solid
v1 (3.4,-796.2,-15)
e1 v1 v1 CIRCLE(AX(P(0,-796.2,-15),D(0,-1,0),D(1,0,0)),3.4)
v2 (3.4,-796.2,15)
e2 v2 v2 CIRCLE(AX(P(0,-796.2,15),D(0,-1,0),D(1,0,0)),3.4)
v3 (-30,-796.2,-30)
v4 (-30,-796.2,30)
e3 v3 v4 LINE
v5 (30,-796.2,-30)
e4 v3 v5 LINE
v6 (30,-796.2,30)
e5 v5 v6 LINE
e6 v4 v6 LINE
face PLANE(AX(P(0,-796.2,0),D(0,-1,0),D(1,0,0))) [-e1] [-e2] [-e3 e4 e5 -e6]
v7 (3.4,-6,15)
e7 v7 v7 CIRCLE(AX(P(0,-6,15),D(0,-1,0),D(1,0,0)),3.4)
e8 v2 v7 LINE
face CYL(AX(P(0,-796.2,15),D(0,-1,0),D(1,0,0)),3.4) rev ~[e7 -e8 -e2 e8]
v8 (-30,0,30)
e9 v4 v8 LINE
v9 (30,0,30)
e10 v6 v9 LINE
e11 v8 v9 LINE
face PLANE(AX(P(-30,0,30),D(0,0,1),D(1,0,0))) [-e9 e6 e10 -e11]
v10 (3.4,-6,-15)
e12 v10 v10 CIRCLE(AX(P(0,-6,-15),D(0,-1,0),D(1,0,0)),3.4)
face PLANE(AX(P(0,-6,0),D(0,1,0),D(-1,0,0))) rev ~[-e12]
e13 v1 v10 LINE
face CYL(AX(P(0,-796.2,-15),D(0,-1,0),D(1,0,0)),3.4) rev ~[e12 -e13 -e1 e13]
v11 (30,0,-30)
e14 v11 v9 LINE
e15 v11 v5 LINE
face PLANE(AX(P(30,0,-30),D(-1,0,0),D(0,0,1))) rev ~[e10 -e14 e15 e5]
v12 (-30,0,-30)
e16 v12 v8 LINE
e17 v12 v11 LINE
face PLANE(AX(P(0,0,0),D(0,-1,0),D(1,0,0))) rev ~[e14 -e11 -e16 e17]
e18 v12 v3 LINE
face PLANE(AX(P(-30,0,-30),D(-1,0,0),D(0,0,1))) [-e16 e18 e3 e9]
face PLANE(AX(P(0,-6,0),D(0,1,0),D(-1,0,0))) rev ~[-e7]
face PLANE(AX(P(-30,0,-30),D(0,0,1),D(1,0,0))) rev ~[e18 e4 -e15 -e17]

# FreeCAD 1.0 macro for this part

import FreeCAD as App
import Part
import Sketcher
from FreeCAD import Vector
Q = App.Units.Quantity

doc = App.newDocument("Part")
body = doc.addObject("PartDesign::Body", "Body")

# Sketch on XZ plane
sketch1 = body.newObject("Sketcher::SketchObject", "Sketch")
sketch1.AttachmentSupport = (doc.getObject("XZ_Plane"), [""])
sketch1.MapMode = "FlatFace"
sketch1.addGeometry([
    Part.LineSegment(Vector(-30, 30, 0), Vector(-30, -30, 0)),
    Part.LineSegment(Vector(-30, -30, 0), Vector(30, -30, 0)),
    Part.LineSegment(Vector(30, -30, 0), Vector(30, 30, 0)),
    Part.LineSegment(Vector(30, 30, 0), Vector(-30, 30, 0)),
], False)
sketch1.addConstraint([
    Sketcher.Constraint("Coincident", 0, 2, 1, 1),
    Sketcher.Constraint("Coincident", 1, 2, 2, 1),
    Sketcher.Constraint("Coincident", 2, 2, 3, 1),
    Sketcher.Constraint("Coincident", 3, 2, 0, 1),
    Sketcher.Constraint("Vertical", 0),
    Sketcher.Constraint("Horizontal", 1),
    Sketcher.Constraint("Vertical", 2),
    Sketcher.Constraint("Horizontal", 3),
    Sketcher.Constraint("Symmetric", 0, 2, 2, 2, -1, 1),
    Sketcher.Constraint("Equal", 3, 0),
    Sketcher.Constraint("DistanceX", 1, 1, 1, 2, Q("60 mm")),
])
pad1 = body.newObject("PartDesign::Pad", "Pad")
pad1.Profile = sketch1
pad1.Length = 796.2

# Sketch on XZ plane
sketch2 = body.newObject("Sketcher::SketchObject", "Sketch001")
sketch2.AttachmentSupport = (doc.getObject("XZ_Plane"), [""])
sketch2.MapMode = "FlatFace"
sketch2.AttachmentOffset = App.Placement(Vector(0, 0, 796.2), App.Rotation())
sketch2.addGeometry([
    Part.LineSegment(Vector(-30, 30, 0), Vector(-30, -30, 0)),
    Part.LineSegment(Vector(-30, -30, 0), Vector(30, -30, 0)),
    Part.LineSegment(Vector(30, -30, 0), Vector(30, 30, 0)),
    Part.LineSegment(Vector(30, 30, 0), Vector(-30, 30, 0)),
], False)
sketch2.addConstraint([
    Sketcher.Constraint("Coincident", 0, 2, 1, 1),
    Sketcher.Constraint("Coincident", 1, 2, 2, 1),
    Sketcher.Constraint("Coincident", 2, 2, 3, 1),
    Sketcher.Constraint("Coincident", 3, 2, 0, 1),
    Sketcher.Constraint("Vertical", 0),
    Sketcher.Constraint("Horizontal", 1),
    Sketcher.Constraint("Vertical", 2),
    Sketcher.Constraint("Horizontal", 3),
    Sketcher.Constraint("Symmetric", 0, 2, 2, 2, -1, 1),
    Sketcher.Constraint("Equal", 3, 0),
    Sketcher.Constraint("DistanceX", 1, 1, 1, 2, Q("60 mm")),
])
pad2 = body.newObject("PartDesign::Pad", "Pad001")
pad2.Profile = sketch2
pad2.Length = 6
pad2.Reversed = True

# Sketch on XZ plane
sketch3 = body.newObject("Sketcher::SketchObject", "Sketch002")
sketch3.AttachmentSupport = (doc.getObject("XZ_Plane"), [""])
sketch3.MapMode = "FlatFace"
sketch3.AttachmentOffset = App.Placement(Vector(0, 0, 796.2), App.Rotation())
sketch3.addGeometry([
    Part.Circle(Vector(0, 15, 0), Vector(0, 0, 1), 3.4),
    Part.Circle(Vector(0, -15, 0), Vector(0, 0, 1), 3.4),
], False)
sketch3.addConstraint([
    Sketcher.Constraint("Equal", 0, 1),
    Sketcher.Constraint("Symmetric", 0, 3, 1, 3, -1, 1),
    Sketcher.Constraint("PointOnObject", 0, 3, -2),
    Sketcher.Constraint("Diameter", 0, Q("6.8 mm")),
    Sketcher.Constraint("DistanceY", -1, 1, 0, 3, Q("15 mm")),
])
pocket1 = body.newObject("PartDesign::Pocket", "Pocket")
pocket1.Profile = sketch3
pocket1.Type = "ThroughAll"

# Sketch on XZ plane
sketch4 = body.newObject("Sketcher::SketchObject", "Sketch003")
sketch4.AttachmentSupport = (doc.getObject("XZ_Plane"), [""])
sketch4.MapMode = "FlatFace"
sketch4.addGeometry([
    Part.LineSegment(Vector(30, 30, 0), Vector(30, -30, 0)),
    Part.LineSegment(Vector(30, -30, 0), Vector(-30, -30, 0)),
    Part.LineSegment(Vector(-30, -30, 0), Vector(-30, 30, 0)),
    Part.LineSegment(Vector(-30, 30, 0), Vector(30, 30, 0)),
], False)
sketch4.addConstraint([
    Sketcher.Constraint("Coincident", 0, 2, 1, 1),
    Sketcher.Constraint("Coincident", 1, 2, 2, 1),
    Sketcher.Constraint("Coincident", 2, 2, 3, 1),
    Sketcher.Constraint("Coincident", 3, 2, 0, 1),
    Sketcher.Constraint("Vertical", 0),
    Sketcher.Constraint("Horizontal", 1),
    Sketcher.Constraint("Vertical", 2),
    Sketcher.Constraint("Horizontal", 3),
    Sketcher.Constraint("Symmetric", 0, 2, 2, 2, -1, 1),
    Sketcher.Constraint("Equal", 3, 0),
    Sketcher.Constraint("DistanceX", 1, 2, 1, 1, Q("60 mm")),
])
pad3 = body.newObject("PartDesign::Pad", "Pad002")
pad3.Profile = sketch4
pad3.Length = 6

doc.recompute()
